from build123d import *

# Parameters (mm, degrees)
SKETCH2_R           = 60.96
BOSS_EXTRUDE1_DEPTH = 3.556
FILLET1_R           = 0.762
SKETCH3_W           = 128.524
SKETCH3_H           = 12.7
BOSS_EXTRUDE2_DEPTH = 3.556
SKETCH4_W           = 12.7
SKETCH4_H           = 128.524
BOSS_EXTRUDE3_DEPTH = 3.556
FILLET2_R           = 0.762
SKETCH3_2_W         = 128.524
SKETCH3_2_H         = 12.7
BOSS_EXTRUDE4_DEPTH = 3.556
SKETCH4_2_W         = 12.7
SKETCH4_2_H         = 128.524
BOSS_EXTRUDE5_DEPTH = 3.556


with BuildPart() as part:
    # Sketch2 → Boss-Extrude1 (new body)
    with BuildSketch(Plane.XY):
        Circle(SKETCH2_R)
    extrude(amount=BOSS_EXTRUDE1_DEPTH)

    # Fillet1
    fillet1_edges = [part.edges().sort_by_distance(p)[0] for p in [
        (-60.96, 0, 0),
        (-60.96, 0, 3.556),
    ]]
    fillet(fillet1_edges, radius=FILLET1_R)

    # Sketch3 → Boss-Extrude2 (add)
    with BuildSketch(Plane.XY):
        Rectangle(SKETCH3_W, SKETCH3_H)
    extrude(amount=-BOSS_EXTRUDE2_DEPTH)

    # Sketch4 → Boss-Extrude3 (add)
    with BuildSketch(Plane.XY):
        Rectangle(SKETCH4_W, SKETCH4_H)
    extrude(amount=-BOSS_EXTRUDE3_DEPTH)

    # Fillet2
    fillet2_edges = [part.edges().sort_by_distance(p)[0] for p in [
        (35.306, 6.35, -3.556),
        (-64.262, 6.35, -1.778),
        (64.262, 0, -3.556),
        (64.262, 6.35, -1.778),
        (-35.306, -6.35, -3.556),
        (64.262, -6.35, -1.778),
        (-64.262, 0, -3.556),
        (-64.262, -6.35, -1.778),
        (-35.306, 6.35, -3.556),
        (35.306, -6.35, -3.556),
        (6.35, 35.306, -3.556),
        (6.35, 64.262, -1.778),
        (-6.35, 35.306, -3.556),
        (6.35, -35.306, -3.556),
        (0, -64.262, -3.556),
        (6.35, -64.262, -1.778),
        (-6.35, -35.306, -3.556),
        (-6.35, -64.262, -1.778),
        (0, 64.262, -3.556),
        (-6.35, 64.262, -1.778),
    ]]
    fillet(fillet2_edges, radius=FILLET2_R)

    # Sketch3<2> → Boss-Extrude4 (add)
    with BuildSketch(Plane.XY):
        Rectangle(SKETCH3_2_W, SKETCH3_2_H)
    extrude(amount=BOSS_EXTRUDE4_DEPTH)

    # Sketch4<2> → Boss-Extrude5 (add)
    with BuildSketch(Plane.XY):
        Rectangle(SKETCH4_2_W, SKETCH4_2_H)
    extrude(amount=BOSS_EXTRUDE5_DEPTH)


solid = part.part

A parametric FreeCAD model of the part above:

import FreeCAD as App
import Part
import Sketcher
Q = App.Units.Quantity


def edges_at(feature, points):
    """Names of the edges that pass closest to the given points."""
    edges = feature.Shape.Edges
    near = lambda p: min(range(len(edges)), key=lambda i: edges[i].distToShape(Part.Vertex(*p))[0])
    return sorted({f"Edge{near(p) + 1}" for p in points})


def add_polygon(sketch, points):
    """Adds a closed chain of lines whose ends are joined by coincident constraints."""
    first, n = sketch.GeometryCount, len(points)
    for a, b in zip(points, points[1:] + points[:1]):
        sketch.addGeometry(Part.LineSegment(App.Vector(*a, 0), App.Vector(*b, 0)), False)
    for i in range(n):
        sketch.addConstraint(Sketcher.Constraint("Coincident", first + i, 2, first + (i + 1) % n, 1))

doc = App.newDocument("Part")
params = doc.addObject("Spreadsheet::Sheet", "Params")
for row, (alias, value) in enumerate([
    ("sketch1_diameter", "4.8 in"),
    ("pad1_length", "0.14 in"),
    ("fillet_radius", "0.03 in"),
    ("sketch2_height", "0.5 in"),
    ("sketch2_width", "5.06 in"),
    ("pad2_length", "0.14 in"),
    ("sketch3_width", "0.5 in"),
    ("sketch3_height", "5.06 in"),
    ("pad3_length", "0.14 in"),
    ("fillet2_radius", "0.03 in"),
    ("sketch4_height", "0.5 in"),
    ("sketch4_width", "5.06 in"),
    ("pad4_length", "0.14 in"),
    ("sketch5_width", "0.5 in"),
    ("sketch5_height", "5.06 in"),
    ("pad5_length", "0.14 in"),
], start=1):
    params.set(f"A{row}", alias)
    params.set(f"B{row}", "=" + value)
    params.setAlias(f"B{row}", alias)

body = doc.addObject("PartDesign::Body", "Body")

sketch1 = body.newObject("Sketcher::SketchObject", "Sketch")
sketch1.AttachmentSupport = (doc.getObject("XY_Plane"), [""])
sketch1.MapMode = "FlatFace"
sketch1.addGeometry(Part.Circle(App.Vector(0, 0, 0), App.Vector(0, 0, 1), 61), False)
sketch1.addConstraint([
    Sketcher.Constraint("Coincident", 0, 3, -1, 1),
    Sketcher.Constraint("Diameter", 0, Q("4.8 in")),
])
sketch1.setExpression("Constraints[1]", "Params.sketch1_diameter")
pad1 = body.newObject("PartDesign::Pad", "Pad")
pad1.Profile = sketch1
pad1.setExpression("Length", "Params.pad1_length")
doc.recompute()

fillet = body.newObject("PartDesign::Fillet", "Fillet")
fillet.Base = (pad1, edges_at(pad1, [(-60.96, 0, 0), (-60.96, 0, 3.556)]))
fillet.setExpression("Radius", "Params.fillet_radius")

sketch2 = body.newObject("Sketcher::SketchObject", "Sketch001")
sketch2.AttachmentSupport = (doc.getObject("XY_Plane"), [""])
sketch2.MapMode = "FlatFace"
add_polygon(sketch2, [(-64, 6), (-64, -6), (64, -6), (64, 6)])
sketch2.addConstraint([
    Sketcher.Constraint("Vertical", 0),
    Sketcher.Constraint("Horizontal", 1),
    Sketcher.Constraint("Vertical", 2),
    Sketcher.Constraint("Horizontal", 3),
    Sketcher.Constraint("Symmetric", 0, 2, 2, 2, -1, 1),
    Sketcher.Constraint("DistanceY", 0, 2, 0, 1, Q("0.5 in")),
    Sketcher.Constraint("DistanceX", 1, 1, 1, 2, Q("5.06 in")),
])
sketch2.setExpression("Constraints[9]", "Params.sketch2_height")
sketch2.setExpression("Constraints[10]", "Params.sketch2_width")
pad2 = body.newObject("PartDesign::Pad", "Pad001")
pad2.Profile = sketch2
pad2.setExpression("Length", "Params.pad2_length")
pad2.Reversed = True

sketch3 = body.newObject("Sketcher::SketchObject", "Sketch002")
sketch3.AttachmentSupport = (doc.getObject("XY_Plane"), [""])
sketch3.MapMode = "FlatFace"
add_polygon(sketch3, [(-6, 64), (-6, -64), (6, -64), (6, 64)])
sketch3.addConstraint([
    Sketcher.Constraint("Vertical", 0),
    Sketcher.Constraint("Horizontal", 1),
    Sketcher.Constraint("Vertical", 2),
    Sketcher.Constraint("Horizontal", 3),
    Sketcher.Constraint("Symmetric", 0, 2, 2, 2, -1, 1),
    Sketcher.Constraint("DistanceX", 1, 1, 1, 2, Q("0.5 in")),
    Sketcher.Constraint("DistanceY", 0, 2, 0, 1, Q("5.06 in")),
])
sketch3.setExpression("Constraints[9]", "Params.sketch3_width")
sketch3.setExpression("Constraints[10]", "Params.sketch3_height")
pad3 = body.newObject("PartDesign::Pad", "Pad002")
pad3.Profile = sketch3
pad3.setExpression("Length", "Params.pad3_length")
pad3.Reversed = True
doc.recompute()

fillet2 = body.newObject("PartDesign::Fillet", "Fillet001")
fillet2.Base = (pad3, edges_at(pad3, [
    (35.306, 6.35, -3.556),
    (-64.262, 6.35, -1.778),
    (64.262, 0, -3.556),
    (64.262, 6.35, -1.778),
    (-35.306, -6.35, -3.556),
    (64.262, -6.35, -1.778),
    (-64.262, 0, -3.556),
    (-64.262, -6.35, -1.778),
    (-35.306, 6.35, -3.556),
    (35.306, -6.35, -3.556),
    (6.35, 35.306, -3.556),
    (6.35, 64.262, -1.778),
    (-6.35, 35.306, -3.556),
    (6.35, -35.306, -3.556),
    (0, -64.262, -3.556),
    (6.35, -64.262, -1.778),
    (-6.35, -35.306, -3.556),
    (-6.35, -64.262, -1.778),
    (0, 64.262, -3.556),
    (-6.35, 64.262, -1.778),
]))
fillet2.setExpression("Radius", "Params.fillet2_radius")

sketch4 = body.newObject("Sketcher::SketchObject", "Sketch003")
sketch4.AttachmentSupport = (doc.getObject("XY_Plane"), [""])
sketch4.MapMode = "FlatFace"
add_polygon(sketch4, [(-64, 6), (-64, -6), (64, -6), (64, 6)])
sketch4.addConstraint([
    Sketcher.Constraint("Vertical", 0),
    Sketcher.Constraint("Horizontal", 1),
    Sketcher.Constraint("Vertical", 2),
    Sketcher.Constraint("Horizontal", 3),
    Sketcher.Constraint("Symmetric", 0, 2, 2, 2, -1, 1),
    Sketcher.Constraint("DistanceY", 0, 2, 0, 1, Q("0.5 in")),
    Sketcher.Constraint("DistanceX", 1, 1, 1, 2, Q("5.06 in")),
])
sketch4.setExpression("Constraints[9]", "Params.sketch4_height")
sketch4.setExpression("Constraints[10]", "Params.sketch4_width")
pad4 = body.newObject("PartDesign::Pad", "Pad003")
pad4.Profile = sketch4
pad4.setExpression("Length", "Params.pad4_length")

sketch5 = body.newObject("Sketcher::SketchObject", "Sketch004")
sketch5.AttachmentSupport = (doc.getObject("XY_Plane"), [""])
sketch5.MapMode = "FlatFace"
add_polygon(sketch5, [(-6, 64), (-6, -64), (6, -64), (6, 64)])
sketch5.addConstraint([
    Sketcher.Constraint("Vertical", 0),
    Sketcher.Constraint("Horizontal", 1),
    Sketcher.Constraint("Vertical", 2),
    Sketcher.Constraint("Horizontal", 3),
    Sketcher.Constraint("Symmetric", 0, 2, 2, 2, -1, 1),
    Sketcher.Constraint("DistanceX", 1, 1, 1, 2, Q("0.5 in")),
    Sketcher.Constraint("DistanceY", 0, 2, 0, 1, Q("5.06 in")),
])
sketch5.setExpression("Constraints[9]", "Params.sketch5_width")
sketch5.setExpression("Constraints[10]", "Params.sketch5_height")
pad5 = body.newObject("PartDesign::Pad", "Pad004")
pad5.Profile = sketch5
pad5.setExpression("Length", "Params.pad5_length")

doc.recompute()
